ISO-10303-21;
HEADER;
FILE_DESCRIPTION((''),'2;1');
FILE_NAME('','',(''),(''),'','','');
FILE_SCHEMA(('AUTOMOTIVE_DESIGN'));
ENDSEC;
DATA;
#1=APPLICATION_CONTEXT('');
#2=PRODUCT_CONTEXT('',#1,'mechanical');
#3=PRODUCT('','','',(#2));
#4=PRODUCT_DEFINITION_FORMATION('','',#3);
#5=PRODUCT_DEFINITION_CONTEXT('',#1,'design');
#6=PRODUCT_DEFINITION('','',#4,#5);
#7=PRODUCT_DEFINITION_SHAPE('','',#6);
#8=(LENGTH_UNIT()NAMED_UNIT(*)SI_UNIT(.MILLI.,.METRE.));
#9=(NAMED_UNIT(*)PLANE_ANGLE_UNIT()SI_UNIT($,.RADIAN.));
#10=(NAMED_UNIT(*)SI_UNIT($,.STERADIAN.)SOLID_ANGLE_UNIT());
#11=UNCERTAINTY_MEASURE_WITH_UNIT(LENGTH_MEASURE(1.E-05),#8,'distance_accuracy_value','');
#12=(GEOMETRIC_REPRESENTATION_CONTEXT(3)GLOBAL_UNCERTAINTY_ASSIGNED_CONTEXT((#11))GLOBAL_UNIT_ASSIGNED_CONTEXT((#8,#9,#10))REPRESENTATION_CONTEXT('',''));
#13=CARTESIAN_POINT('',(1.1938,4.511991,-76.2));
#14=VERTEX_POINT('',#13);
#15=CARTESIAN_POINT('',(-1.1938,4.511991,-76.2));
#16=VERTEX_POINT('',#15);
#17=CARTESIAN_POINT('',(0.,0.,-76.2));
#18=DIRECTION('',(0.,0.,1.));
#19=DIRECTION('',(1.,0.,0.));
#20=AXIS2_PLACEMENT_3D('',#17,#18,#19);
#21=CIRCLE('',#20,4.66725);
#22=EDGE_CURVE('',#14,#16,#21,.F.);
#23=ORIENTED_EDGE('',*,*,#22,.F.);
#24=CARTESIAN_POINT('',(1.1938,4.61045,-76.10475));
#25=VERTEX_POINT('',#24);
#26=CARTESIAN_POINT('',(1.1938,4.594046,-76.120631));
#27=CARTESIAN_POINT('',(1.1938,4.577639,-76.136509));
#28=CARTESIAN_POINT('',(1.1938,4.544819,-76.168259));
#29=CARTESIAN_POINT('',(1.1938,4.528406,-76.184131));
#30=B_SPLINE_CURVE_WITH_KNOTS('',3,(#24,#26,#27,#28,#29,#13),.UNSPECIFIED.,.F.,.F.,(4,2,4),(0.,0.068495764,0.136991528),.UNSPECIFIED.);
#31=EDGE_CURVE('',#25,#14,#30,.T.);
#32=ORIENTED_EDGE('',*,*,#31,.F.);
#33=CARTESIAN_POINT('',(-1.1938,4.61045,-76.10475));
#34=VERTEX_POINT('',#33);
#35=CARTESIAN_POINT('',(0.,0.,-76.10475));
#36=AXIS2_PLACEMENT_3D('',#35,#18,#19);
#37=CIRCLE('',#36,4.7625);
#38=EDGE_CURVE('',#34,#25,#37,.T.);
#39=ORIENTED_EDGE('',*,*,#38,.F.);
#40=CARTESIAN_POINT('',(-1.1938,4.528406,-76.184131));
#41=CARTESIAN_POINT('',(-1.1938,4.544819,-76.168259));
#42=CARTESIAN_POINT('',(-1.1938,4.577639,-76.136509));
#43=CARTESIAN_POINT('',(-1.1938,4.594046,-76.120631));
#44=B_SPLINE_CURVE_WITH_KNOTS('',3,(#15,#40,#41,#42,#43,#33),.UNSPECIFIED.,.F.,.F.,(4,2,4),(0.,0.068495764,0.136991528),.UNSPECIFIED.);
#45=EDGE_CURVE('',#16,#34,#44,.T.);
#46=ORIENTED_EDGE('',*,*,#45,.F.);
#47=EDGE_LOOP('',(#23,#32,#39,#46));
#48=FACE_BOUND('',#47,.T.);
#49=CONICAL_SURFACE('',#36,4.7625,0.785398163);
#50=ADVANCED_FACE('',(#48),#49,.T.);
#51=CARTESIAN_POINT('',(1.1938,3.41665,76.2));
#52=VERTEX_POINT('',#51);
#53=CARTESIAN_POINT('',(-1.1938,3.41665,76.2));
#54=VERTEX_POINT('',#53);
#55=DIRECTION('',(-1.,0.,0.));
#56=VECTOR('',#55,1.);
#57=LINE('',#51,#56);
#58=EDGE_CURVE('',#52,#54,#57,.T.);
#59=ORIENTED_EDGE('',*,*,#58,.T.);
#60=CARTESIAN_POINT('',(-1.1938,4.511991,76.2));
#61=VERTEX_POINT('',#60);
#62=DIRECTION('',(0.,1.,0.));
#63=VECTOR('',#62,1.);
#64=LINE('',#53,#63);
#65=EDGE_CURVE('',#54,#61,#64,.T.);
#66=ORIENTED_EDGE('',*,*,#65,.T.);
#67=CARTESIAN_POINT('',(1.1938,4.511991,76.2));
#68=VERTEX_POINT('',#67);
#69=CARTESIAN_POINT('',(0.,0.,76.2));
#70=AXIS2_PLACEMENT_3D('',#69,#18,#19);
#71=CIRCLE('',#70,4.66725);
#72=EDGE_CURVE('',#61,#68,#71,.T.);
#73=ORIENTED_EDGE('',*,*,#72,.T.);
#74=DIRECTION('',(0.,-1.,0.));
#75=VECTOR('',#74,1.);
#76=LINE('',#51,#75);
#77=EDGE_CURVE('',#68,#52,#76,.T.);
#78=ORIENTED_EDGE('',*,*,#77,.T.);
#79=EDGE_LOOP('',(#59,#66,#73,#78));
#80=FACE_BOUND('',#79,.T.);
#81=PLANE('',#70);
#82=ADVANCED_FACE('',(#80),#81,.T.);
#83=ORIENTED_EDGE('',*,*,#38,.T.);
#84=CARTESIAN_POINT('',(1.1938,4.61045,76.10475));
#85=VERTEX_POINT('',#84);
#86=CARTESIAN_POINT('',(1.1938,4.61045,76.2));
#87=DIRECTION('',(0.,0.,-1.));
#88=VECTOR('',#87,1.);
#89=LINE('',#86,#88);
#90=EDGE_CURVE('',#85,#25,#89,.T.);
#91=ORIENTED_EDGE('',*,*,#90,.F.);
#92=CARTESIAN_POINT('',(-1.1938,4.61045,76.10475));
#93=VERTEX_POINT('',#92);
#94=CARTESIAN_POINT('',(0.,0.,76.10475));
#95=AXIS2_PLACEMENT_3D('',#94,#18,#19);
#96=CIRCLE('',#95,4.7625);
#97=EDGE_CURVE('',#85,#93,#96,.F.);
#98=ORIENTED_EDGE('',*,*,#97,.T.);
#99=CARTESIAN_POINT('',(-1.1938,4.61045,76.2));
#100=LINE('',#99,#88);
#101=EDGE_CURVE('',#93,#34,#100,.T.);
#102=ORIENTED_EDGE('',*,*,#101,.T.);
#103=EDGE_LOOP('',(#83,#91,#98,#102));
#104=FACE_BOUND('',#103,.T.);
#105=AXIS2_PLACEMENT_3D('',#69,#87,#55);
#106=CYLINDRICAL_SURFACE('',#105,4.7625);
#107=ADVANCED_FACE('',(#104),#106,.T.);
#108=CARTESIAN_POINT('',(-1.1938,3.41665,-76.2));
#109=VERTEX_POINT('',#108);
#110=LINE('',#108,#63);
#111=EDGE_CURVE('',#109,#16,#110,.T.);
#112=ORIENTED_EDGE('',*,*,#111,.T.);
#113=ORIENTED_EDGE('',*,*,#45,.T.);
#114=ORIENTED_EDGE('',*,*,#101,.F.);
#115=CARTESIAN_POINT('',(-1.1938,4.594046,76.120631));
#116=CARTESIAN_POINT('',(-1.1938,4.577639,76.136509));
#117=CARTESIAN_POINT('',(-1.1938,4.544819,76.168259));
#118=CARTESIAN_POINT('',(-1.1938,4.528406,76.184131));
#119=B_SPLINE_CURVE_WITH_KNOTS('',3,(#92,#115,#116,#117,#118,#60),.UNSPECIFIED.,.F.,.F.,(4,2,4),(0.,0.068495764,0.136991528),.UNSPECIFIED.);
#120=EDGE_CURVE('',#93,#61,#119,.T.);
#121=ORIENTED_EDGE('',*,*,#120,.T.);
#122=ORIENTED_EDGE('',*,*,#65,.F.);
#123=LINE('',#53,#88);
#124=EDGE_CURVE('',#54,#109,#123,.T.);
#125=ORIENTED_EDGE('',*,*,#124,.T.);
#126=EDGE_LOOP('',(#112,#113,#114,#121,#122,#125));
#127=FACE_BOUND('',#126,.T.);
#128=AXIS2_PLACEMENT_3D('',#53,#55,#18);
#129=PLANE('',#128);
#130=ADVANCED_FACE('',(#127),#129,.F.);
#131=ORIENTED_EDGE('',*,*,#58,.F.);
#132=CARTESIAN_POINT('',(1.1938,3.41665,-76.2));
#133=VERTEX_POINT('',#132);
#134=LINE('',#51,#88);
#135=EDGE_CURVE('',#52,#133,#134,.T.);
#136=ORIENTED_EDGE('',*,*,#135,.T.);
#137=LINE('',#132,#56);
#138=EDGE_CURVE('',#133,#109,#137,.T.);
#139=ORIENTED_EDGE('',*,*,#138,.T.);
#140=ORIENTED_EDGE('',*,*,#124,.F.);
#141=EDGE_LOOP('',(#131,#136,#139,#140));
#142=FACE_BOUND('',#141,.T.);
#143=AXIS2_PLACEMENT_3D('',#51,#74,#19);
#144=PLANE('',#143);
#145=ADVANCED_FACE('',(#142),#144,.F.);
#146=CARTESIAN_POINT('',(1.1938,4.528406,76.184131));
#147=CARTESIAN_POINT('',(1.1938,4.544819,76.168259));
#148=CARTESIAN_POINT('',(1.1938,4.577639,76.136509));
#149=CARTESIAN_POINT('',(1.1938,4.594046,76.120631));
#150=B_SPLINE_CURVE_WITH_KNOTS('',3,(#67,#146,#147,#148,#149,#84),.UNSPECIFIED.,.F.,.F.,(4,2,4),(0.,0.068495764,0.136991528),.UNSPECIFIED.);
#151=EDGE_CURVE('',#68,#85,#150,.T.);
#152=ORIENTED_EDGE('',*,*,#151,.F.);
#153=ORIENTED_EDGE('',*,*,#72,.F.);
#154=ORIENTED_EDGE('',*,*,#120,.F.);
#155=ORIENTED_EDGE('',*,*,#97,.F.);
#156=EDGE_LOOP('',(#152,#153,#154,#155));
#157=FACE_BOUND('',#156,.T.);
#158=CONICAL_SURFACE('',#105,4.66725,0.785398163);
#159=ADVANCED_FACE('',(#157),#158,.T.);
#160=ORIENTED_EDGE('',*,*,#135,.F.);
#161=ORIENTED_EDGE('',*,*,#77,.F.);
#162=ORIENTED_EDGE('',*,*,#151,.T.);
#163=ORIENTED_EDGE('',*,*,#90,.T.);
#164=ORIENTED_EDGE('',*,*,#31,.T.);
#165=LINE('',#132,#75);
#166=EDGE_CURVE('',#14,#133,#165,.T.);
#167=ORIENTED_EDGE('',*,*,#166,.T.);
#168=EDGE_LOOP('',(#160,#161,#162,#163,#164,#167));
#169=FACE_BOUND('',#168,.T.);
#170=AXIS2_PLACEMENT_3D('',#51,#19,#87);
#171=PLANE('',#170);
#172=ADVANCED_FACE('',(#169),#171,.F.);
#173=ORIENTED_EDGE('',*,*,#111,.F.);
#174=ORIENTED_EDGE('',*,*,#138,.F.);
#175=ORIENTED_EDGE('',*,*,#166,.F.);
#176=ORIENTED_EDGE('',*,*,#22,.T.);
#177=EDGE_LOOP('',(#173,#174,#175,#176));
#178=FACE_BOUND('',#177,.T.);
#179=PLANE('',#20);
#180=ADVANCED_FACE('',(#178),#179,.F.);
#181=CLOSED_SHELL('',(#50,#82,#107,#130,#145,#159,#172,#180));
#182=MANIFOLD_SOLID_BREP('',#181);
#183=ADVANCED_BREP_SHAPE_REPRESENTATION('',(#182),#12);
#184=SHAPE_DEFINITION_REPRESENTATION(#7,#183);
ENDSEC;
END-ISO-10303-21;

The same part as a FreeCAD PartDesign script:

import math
import FreeCAD as App
import Part
import Sketcher
Q = App.Units.Quantity


def edges_at(feature, points):
    """Names of the edges that pass closest to the given points."""
    edges = feature.Shape.Edges
    near = lambda p: min(range(len(edges)), key=lambda i: edges[i].distToShape(Part.Vertex(*p))[0])
    return sorted({f"Edge{near(p) + 1}" for p in points})

doc = App.newDocument("Part")
body = doc.addObject("PartDesign::Body", "Body")

sketch1 = doc.addObject("Sketcher::SketchObject", "Sketch")
body.addObject(sketch1)
sketch1.AttachmentSupport = (doc.XY_Plane, [""])
sketch1.MapMode = "FlatFace"
sketch1.addGeometry([
    Part.LineSegment(App.Vector(-1.2, 3.4, 0), App.Vector(-1.2, 4.6, 0)),
    Part.ArcOfCircle(Part.Circle(App.Vector(0, 0, 0), App.Vector(0, 0, 1), 4.8), math.radians(105), math.radians(435)),
    Part.LineSegment(App.Vector(1.2, 4.6, 0), App.Vector(1.2, 3.4, 0)),
    Part.LineSegment(App.Vector(1.2, 3.4, 0), App.Vector(-1.2, 3.4, 0)),
], False)
sketch1.addConstraint([
    Sketcher.Constraint("Coincident", 0, 2, 1, 1),
    Sketcher.Constraint("Coincident", 1, 2, 2, 1),
    Sketcher.Constraint("Coincident", 2, 2, 3, 1),
    Sketcher.Constraint("Coincident", 3, 2, 0, 1),
    Sketcher.Constraint("Vertical", 0),
    Sketcher.Constraint("Vertical", 2),
    Sketcher.Constraint("Horizontal", 3),
    Sketcher.Constraint("Coincident", 1, 3, -1, 1),
    Sketcher.Constraint("Horizontal", 0, 2, 1, 2),
    Sketcher.Constraint("Radius", 1, Q("0.1875 in")),
    Sketcher.Constraint("DistanceX", 3, 2, 3, 1, Q("0.094 in")),
    Sketcher.Constraint("DistanceY", 0, 1, 0, 2, Q("0.047 in")),
])
pad1 = doc.addObject("PartDesign::Pad", "Pad")
body.addObject(pad1)
pad1.Profile = sketch1
pad1.Type = "TwoLengths"
pad1.Length = Q("3 in")
pad1.Length2 = Q("3 in")
doc.recompute()

chamfer = doc.addObject("PartDesign::Chamfer", "Chamfer")
body.addObject(chamfer)
chamfer.Base = (pad1, edges_at(pad1, [(0, -4.763, -76.2), (0, -4.763, 76.2)]))
chamfer.Size = 0.09525

doc.recompute()
